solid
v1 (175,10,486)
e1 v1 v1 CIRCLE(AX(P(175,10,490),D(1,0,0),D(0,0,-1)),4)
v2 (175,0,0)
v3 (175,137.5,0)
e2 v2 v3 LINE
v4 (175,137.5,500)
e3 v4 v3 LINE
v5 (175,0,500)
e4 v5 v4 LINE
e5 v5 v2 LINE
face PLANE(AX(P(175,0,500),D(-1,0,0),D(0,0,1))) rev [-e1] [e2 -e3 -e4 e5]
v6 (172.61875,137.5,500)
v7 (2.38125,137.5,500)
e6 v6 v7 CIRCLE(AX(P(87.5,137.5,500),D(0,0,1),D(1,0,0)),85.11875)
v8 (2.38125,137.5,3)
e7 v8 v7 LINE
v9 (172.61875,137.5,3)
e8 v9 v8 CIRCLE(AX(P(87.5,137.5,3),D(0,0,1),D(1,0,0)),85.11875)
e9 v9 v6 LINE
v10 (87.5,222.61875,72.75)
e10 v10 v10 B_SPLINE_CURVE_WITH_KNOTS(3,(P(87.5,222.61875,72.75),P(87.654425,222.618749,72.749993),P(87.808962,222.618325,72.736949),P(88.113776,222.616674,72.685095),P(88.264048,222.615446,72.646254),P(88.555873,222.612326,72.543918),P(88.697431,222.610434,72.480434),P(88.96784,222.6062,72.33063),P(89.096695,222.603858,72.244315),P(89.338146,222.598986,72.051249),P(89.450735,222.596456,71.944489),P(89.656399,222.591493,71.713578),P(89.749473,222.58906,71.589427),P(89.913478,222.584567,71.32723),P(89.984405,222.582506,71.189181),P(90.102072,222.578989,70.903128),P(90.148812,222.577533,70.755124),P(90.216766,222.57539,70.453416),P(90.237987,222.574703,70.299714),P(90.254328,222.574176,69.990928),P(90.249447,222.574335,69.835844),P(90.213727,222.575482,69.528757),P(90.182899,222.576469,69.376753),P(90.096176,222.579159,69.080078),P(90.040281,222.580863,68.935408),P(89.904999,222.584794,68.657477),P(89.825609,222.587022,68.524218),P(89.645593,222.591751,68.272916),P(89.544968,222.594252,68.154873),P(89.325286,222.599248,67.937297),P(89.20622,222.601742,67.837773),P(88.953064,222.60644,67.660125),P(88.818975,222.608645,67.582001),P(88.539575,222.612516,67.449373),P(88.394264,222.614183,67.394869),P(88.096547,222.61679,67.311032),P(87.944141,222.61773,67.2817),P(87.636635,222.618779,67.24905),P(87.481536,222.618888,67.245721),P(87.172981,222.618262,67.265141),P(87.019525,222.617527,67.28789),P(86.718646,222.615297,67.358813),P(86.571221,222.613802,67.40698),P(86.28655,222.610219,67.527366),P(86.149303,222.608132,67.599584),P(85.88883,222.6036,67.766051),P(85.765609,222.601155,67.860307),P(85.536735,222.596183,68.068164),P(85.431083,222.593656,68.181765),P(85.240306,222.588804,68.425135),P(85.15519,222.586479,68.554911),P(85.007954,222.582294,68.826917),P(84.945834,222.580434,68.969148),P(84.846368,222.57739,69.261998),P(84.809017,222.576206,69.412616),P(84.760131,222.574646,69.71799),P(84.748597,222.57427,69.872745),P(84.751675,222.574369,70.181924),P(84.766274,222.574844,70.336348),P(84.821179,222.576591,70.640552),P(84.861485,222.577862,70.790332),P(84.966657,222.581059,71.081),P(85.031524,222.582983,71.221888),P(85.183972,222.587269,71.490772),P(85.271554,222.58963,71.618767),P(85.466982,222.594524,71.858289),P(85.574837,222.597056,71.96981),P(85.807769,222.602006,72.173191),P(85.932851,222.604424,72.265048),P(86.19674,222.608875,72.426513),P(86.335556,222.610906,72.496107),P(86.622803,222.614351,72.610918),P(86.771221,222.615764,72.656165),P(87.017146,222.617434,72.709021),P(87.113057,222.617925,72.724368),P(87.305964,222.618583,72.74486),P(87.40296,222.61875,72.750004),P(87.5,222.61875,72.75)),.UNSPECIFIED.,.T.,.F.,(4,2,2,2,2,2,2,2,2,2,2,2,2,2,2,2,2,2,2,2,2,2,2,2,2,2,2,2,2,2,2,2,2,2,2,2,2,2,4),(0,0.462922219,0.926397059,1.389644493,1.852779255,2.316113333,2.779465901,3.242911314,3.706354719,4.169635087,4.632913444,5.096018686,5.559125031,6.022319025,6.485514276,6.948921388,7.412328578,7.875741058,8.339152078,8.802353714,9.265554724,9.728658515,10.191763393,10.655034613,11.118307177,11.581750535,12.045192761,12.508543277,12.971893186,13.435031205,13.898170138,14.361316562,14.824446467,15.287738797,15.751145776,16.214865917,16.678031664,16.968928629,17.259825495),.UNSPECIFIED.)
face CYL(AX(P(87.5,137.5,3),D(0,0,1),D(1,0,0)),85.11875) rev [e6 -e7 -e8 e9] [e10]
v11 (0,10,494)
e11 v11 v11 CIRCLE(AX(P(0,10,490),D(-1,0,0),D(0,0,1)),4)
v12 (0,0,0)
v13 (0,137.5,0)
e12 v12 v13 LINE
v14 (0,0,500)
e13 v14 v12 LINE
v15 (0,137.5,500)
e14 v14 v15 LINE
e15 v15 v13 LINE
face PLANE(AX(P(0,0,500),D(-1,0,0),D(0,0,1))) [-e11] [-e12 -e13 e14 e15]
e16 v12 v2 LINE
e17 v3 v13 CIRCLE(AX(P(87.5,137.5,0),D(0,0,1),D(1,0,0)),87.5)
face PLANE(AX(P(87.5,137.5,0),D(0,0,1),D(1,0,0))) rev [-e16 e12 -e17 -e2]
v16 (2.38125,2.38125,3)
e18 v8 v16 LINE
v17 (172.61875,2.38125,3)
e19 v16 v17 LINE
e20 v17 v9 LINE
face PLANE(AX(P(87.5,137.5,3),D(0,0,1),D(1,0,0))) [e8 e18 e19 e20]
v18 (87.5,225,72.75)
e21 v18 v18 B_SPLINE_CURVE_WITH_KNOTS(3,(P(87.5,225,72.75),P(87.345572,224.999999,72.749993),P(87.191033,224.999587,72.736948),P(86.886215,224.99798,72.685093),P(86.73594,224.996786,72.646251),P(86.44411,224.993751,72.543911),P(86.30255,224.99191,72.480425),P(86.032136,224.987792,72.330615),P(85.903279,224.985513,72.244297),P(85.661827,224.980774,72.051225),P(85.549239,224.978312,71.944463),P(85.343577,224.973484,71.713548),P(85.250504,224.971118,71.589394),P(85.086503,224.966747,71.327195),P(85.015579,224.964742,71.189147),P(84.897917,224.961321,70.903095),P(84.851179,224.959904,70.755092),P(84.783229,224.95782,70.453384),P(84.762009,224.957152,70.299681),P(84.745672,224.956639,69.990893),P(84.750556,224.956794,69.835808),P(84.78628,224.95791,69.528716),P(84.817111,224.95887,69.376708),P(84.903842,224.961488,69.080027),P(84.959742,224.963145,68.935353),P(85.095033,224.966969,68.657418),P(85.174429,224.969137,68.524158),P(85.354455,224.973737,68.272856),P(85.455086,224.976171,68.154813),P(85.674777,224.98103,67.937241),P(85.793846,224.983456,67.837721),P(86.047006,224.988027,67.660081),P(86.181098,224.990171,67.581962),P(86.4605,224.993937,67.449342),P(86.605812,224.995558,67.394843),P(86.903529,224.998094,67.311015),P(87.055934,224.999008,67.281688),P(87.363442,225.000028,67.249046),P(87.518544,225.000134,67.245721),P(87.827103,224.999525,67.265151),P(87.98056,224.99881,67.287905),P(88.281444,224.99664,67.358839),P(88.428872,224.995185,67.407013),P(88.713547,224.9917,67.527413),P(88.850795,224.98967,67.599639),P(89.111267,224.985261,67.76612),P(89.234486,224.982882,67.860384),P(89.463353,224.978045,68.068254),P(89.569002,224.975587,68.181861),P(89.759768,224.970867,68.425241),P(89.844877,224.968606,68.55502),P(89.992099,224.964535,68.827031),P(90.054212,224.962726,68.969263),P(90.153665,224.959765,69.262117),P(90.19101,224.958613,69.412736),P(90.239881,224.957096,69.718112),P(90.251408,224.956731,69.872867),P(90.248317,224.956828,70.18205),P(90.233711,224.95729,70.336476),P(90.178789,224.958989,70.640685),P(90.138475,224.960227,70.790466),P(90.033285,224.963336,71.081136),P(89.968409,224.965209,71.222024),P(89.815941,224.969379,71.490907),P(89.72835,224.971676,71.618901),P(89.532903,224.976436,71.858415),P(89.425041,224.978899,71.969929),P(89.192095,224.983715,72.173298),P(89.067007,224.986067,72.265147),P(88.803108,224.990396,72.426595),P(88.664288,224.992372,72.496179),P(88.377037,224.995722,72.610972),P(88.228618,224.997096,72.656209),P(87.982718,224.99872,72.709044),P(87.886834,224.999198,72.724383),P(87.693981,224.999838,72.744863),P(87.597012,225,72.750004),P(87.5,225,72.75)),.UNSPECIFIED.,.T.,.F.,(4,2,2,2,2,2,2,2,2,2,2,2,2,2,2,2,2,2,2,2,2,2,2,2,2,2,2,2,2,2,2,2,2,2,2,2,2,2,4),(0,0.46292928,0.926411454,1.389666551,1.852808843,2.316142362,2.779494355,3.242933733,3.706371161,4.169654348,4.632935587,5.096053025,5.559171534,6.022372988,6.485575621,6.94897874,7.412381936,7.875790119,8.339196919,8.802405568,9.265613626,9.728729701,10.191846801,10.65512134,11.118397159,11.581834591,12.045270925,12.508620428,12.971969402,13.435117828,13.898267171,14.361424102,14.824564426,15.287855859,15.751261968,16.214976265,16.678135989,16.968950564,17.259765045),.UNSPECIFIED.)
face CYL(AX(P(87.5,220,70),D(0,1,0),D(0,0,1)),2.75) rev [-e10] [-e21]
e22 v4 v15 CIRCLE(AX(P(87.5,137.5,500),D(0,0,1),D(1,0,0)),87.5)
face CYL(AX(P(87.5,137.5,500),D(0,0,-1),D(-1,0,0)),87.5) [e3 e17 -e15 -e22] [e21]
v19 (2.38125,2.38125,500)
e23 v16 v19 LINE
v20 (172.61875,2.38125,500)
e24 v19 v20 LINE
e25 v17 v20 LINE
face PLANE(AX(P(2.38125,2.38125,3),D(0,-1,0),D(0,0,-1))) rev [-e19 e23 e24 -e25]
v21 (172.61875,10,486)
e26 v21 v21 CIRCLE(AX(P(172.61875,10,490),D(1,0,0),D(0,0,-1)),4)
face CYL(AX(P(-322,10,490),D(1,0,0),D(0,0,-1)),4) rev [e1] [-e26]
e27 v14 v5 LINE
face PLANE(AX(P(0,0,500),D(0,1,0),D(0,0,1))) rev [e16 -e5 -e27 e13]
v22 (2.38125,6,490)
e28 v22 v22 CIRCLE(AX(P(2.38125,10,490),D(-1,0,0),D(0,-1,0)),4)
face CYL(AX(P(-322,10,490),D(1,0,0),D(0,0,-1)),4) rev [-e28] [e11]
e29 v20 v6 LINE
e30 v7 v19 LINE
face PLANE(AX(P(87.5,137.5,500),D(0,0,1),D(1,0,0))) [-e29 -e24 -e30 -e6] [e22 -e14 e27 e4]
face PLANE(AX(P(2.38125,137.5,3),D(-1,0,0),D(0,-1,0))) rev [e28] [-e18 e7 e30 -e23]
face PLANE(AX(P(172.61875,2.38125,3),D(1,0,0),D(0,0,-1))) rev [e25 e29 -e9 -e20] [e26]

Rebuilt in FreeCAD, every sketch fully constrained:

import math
import FreeCAD as App
import Part
import Sketcher

doc = App.newDocument("Part")
body = doc.addObject("PartDesign::Body", "Body")

sketch1 = body.newObject("Sketcher::SketchObject", "Sketch")
sketch1.AttachmentSupport = (doc.getObject("XY_Plane"), [""])
sketch1.MapMode = "FlatFace"
sketch1.addGeometry([
    Part.LineSegment(App.Vector(0, 0, 0), App.Vector(175, 0, 0)),
    Part.LineSegment(App.Vector(175, 0, 0), App.Vector(175, 137.5, 0)),
    Part.ArcOfCircle(Part.Circle(App.Vector(87.5, 137.5, 0), App.Vector(0, 0, 1), 87.5), math.radians(0), math.radians(180)),
    Part.LineSegment(App.Vector(0, 137.5, 0), App.Vector(0, 0, 0)),
], False)
sketch1.addConstraint([
    Sketcher.Constraint("Coincident", 0, 2, 1, 1),
    Sketcher.Constraint("Tangent", 1, 2, 2, 1),
    Sketcher.Constraint("Tangent", 2, 2, 3, 1),
    Sketcher.Constraint("Coincident", 3, 2, 0, 1),
    Sketcher.Constraint("Horizontal", 0),
    Sketcher.Constraint("Vertical", 1),
    Sketcher.Constraint("Vertical", 3),
    Sketcher.Constraint("Coincident", 3, 2, -1, 1),
    Sketcher.Constraint("Radius", 2, 87.5),
    Sketcher.Constraint("DistanceY", 1, 1, 1, 2, 137.5),
])
pad1 = body.newObject("PartDesign::Pad", "Pad")
pad1.Profile = sketch1
pad1.Length = 500

sketch2 = body.newObject("Sketcher::SketchObject", "Sketch001")
sketch2.AttachmentSupport = (doc.getObject("XY_Plane"), [""])
sketch2.MapMode = "FlatFace"
sketch2.AttachmentOffset = App.Placement(App.Vector(0, 0, 500), App.Rotation())
sketch2.addGeometry([
    Part.LineSegment(App.Vector(172.61875, 2.38125, 0), App.Vector(172.61875, 137.5, 0)),
    Part.ArcOfCircle(Part.Circle(App.Vector(87.5, 137.5, 0), App.Vector(0, 0, 1), 85.11875), math.radians(0), math.radians(180)),
    Part.LineSegment(App.Vector(2.38125, 137.5, 0), App.Vector(2.38125, 2.38125, 0)),
    Part.LineSegment(App.Vector(2.38125, 2.38125, 0), App.Vector(172.61875, 2.38125, 0)),
], False)
sketch2.addConstraint([
    Sketcher.Constraint("Tangent", 0, 2, 1, 1),
    Sketcher.Constraint("Tangent", 1, 2, 2, 1),
    Sketcher.Constraint("Coincident", 2, 2, 3, 1),
    Sketcher.Constraint("Coincident", 3, 2, 0, 1),
    Sketcher.Constraint("Vertical", 0),
    Sketcher.Constraint("Vertical", 2),
    Sketcher.Constraint("Horizontal", 3),
    Sketcher.Constraint("DistanceX", -1, 1, 1, 3, 87.5),
    Sketcher.Constraint("DistanceY", -1, 1, 1, 3, 137.5),
    Sketcher.Constraint("Radius", 1, 85.11875),
    Sketcher.Constraint("DistanceY", 0, 1, 0, 2, 135.11875),
])
pocket1 = body.newObject("PartDesign::Pocket", "Pocket")
pocket1.Profile = sketch2
pocket1.Length = 497

sketch3 = body.newObject("Sketcher::SketchObject", "Sketch002")
sketch3.AttachmentSupport = (doc.getObject("YZ_Plane"), [""])
sketch3.MapMode = "FlatFace"
sketch3.AttachmentOffset = App.Placement(App.Vector(0, 0, 175), App.Rotation())
sketch3.addGeometry(Part.Circle(App.Vector(10, 490, 0), App.Vector(0, 0, 1), 4), False)
sketch3.addConstraint([
    Sketcher.Constraint("Diameter", 0, 8.0),
    Sketcher.Constraint("DistanceX", -1, 1, 0, 3, 10.0),
    Sketcher.Constraint("DistanceY", -1, 1, 0, 3, 490.0),
])
pocket2 = body.newObject("PartDesign::Pocket", "Pocket001")
pocket2.Profile = sketch3
pocket2.Length = 497

sketch4 = body.newObject("Sketcher::SketchObject", "Sketch003")
sketch4.AttachmentSupport = (doc.getObject("XZ_Plane"), [""])
sketch4.MapMode = "FlatFace"
sketch4.AttachmentOffset = App.Placement(App.Vector(0, 0, -225), App.Rotation())
sketch4.addGeometry(Part.Circle(App.Vector(87.5, 70, 0), App.Vector(0, 0, 1), 2.75), False)
sketch4.addConstraint([
    Sketcher.Constraint("Diameter", 0, 5.5),
    Sketcher.Constraint("DistanceY", -1, 1, 0, 3, 70.0),
    Sketcher.Constraint("DistanceX", -1, 1, 0, 3, 87.5),
])
pocket3 = body.newObject("PartDesign::Pocket", "Pocket002")
pocket3.Profile = sketch4
pocket3.Length = 5
pocket3.Reversed = True

doc.recompute()
